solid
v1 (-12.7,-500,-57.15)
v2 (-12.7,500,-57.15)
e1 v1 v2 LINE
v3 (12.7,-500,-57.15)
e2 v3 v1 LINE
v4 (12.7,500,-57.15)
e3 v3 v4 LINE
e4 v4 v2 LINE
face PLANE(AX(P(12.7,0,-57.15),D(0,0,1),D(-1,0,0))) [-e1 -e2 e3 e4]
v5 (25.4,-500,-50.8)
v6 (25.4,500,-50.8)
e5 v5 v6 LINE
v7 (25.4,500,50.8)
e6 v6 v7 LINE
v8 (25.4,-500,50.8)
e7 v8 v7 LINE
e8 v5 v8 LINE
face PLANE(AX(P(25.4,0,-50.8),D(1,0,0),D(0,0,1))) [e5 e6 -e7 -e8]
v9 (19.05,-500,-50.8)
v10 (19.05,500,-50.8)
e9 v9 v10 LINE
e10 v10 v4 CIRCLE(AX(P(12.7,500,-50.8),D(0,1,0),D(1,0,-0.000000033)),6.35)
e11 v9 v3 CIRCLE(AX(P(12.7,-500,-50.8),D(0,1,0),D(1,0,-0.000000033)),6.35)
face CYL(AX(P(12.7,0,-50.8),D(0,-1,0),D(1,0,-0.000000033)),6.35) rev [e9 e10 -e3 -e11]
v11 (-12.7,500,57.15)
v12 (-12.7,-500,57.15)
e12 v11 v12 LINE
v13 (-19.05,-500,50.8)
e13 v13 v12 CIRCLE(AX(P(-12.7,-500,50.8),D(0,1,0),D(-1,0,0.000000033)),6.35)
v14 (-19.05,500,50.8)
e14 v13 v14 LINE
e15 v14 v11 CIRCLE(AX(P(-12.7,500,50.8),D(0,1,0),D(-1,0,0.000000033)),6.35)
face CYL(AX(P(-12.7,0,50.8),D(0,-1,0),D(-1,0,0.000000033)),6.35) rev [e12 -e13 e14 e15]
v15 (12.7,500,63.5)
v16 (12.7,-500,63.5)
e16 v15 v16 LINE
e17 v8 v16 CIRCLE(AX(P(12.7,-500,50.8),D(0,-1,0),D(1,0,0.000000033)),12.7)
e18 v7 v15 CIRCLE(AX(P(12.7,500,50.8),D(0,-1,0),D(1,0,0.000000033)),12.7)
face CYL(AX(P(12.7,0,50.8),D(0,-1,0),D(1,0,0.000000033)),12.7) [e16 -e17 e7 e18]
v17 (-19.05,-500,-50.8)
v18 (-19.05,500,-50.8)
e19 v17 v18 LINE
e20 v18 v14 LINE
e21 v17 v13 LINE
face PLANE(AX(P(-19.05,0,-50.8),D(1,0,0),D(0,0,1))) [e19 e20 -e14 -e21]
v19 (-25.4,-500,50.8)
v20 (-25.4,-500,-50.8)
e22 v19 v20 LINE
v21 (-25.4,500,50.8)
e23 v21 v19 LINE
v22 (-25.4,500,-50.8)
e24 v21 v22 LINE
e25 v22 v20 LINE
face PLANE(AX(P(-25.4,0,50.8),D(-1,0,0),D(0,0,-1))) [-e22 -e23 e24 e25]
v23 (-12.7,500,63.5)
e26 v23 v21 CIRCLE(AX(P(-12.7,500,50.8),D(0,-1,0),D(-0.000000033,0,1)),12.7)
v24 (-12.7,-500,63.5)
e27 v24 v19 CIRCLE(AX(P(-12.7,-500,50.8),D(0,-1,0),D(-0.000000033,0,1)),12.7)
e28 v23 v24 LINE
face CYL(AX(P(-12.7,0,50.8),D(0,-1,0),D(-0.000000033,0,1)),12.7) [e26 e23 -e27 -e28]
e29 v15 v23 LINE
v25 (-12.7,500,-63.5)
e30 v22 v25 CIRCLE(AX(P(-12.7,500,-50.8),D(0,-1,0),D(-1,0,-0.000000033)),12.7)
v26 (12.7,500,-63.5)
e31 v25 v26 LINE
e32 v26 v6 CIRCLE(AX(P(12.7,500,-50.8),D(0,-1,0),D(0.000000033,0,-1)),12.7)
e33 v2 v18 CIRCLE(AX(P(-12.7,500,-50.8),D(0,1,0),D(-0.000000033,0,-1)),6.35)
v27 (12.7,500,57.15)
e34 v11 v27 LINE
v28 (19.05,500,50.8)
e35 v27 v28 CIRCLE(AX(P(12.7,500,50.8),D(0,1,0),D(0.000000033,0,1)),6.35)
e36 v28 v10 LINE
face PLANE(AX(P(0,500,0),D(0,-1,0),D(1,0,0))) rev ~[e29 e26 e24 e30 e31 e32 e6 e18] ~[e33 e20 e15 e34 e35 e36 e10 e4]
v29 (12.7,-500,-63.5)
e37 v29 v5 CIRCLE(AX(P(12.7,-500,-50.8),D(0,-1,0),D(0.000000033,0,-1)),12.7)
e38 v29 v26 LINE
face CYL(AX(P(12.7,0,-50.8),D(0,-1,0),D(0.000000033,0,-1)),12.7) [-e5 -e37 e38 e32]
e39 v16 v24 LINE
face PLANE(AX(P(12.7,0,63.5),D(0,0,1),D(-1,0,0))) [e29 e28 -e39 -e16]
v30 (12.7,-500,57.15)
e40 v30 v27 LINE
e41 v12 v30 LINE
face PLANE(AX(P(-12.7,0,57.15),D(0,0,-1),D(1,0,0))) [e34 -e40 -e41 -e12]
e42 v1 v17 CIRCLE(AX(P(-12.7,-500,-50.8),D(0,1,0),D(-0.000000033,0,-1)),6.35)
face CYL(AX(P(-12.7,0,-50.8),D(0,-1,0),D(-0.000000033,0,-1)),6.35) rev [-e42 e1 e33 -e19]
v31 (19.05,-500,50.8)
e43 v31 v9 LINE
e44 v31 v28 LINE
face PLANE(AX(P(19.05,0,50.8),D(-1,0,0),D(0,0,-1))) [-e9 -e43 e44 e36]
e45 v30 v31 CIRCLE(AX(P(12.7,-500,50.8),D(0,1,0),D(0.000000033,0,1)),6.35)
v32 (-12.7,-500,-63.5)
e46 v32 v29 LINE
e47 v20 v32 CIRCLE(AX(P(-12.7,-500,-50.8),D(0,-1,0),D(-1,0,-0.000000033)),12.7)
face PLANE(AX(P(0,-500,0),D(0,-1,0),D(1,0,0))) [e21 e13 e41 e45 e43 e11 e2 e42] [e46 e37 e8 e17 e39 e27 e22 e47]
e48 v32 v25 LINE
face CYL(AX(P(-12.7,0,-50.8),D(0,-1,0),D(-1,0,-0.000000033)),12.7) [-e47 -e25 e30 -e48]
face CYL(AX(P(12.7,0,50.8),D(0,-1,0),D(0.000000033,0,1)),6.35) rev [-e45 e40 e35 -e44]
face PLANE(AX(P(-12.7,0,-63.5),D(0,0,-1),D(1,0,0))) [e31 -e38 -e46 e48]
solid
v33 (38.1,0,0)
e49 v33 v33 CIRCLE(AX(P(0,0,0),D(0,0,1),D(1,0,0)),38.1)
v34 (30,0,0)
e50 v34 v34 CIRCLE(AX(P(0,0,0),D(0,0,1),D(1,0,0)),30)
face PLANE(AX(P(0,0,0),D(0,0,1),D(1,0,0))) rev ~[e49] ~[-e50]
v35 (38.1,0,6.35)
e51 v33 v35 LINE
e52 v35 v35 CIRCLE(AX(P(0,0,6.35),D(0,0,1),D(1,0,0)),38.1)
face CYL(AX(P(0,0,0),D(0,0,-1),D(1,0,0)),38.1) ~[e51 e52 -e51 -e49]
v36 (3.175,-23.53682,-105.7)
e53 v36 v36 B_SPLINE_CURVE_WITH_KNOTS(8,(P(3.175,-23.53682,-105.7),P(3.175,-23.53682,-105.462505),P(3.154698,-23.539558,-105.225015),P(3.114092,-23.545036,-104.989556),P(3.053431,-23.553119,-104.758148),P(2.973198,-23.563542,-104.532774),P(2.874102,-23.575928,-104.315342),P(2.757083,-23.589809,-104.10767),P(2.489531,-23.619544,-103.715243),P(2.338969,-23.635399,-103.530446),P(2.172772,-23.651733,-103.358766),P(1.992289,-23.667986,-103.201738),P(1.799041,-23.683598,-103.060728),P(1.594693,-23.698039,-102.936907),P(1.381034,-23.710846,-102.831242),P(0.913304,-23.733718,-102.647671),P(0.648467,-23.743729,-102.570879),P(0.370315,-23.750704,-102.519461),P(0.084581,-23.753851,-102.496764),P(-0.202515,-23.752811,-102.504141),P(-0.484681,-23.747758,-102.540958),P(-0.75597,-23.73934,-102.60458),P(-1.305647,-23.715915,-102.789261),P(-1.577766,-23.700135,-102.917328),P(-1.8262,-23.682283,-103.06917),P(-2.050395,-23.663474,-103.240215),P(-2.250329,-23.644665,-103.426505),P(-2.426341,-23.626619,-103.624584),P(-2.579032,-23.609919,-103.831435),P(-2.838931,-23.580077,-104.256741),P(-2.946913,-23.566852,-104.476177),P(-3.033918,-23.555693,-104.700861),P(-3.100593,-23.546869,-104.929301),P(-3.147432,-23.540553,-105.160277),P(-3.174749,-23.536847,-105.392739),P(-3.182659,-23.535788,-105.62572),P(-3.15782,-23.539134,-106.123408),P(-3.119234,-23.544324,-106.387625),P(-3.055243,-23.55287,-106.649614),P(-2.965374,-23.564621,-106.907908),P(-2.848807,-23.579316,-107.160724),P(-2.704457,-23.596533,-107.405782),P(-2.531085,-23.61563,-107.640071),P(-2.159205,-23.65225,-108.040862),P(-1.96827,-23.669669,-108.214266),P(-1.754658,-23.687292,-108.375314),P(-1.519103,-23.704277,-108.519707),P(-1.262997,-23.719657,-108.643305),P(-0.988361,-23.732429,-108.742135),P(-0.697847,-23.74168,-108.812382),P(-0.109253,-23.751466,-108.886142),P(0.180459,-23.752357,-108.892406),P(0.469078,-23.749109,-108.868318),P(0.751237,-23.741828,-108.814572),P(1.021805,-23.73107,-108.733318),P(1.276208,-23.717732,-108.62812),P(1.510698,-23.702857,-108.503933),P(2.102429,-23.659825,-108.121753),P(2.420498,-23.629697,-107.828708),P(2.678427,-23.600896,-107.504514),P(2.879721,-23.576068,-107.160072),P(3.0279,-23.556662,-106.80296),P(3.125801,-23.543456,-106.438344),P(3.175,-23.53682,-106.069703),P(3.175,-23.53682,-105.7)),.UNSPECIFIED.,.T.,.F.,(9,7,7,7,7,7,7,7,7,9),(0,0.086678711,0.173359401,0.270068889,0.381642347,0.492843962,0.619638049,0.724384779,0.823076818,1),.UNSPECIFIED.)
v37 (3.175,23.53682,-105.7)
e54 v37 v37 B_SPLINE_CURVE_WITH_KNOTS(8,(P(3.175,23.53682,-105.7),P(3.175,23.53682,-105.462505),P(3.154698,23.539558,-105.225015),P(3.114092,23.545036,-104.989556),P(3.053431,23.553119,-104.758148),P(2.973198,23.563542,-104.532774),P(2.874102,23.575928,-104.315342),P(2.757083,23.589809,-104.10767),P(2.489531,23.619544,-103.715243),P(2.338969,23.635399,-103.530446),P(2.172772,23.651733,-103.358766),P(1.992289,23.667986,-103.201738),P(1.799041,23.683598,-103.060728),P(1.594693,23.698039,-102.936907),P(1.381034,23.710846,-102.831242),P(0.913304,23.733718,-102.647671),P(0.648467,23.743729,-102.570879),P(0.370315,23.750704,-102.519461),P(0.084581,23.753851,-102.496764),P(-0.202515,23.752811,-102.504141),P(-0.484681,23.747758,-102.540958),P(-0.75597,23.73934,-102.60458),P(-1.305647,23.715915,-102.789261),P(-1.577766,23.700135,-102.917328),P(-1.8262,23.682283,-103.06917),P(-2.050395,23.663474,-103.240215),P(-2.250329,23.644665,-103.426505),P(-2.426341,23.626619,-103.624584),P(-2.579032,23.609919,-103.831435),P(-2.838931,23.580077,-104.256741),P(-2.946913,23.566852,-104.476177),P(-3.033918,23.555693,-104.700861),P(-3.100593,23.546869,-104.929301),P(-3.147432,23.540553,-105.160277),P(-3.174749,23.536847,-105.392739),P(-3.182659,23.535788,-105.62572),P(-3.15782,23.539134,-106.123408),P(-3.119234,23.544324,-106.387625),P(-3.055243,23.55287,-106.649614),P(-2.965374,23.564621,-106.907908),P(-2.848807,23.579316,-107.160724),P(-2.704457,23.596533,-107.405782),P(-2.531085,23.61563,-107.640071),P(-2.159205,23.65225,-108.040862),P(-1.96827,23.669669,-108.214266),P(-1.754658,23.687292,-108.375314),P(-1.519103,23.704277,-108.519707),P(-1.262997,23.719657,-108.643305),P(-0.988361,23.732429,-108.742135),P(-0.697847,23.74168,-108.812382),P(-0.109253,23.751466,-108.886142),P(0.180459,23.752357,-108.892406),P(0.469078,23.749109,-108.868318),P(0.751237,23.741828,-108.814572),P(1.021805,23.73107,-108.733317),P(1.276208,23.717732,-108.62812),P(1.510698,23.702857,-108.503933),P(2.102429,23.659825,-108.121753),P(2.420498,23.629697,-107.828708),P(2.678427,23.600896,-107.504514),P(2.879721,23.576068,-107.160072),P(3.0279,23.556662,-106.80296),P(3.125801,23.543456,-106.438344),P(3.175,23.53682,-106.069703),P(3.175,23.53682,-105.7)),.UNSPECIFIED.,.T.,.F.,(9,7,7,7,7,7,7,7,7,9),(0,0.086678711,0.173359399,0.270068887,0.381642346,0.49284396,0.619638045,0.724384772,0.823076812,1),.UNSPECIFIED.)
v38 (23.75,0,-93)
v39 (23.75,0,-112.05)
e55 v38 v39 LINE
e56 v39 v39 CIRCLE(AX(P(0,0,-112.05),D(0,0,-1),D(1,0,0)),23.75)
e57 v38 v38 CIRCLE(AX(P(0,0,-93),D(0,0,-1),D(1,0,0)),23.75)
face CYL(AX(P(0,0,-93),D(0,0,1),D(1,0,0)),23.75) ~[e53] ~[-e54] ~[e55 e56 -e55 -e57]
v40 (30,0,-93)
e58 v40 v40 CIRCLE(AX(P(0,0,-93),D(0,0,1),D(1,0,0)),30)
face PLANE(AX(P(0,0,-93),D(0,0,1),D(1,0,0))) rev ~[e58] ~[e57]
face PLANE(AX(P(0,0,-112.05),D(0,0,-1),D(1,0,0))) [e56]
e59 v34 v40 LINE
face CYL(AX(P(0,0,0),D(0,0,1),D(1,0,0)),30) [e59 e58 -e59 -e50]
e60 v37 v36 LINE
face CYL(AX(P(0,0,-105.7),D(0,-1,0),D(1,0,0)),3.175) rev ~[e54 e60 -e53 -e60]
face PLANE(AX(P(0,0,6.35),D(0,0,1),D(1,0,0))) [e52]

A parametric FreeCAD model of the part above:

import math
import FreeCAD as App
import Part
import Sketcher
Q = App.Units.Quantity

doc = App.newDocument("Part")
params = doc.addObject("Spreadsheet::Sheet", "Params")
for row, (alias, value) in enumerate([
    ("pad1_length", "93 mm"),
    ("sketch2_diameter", "3 in"),
    ("pad2_length", "0.25 in"),
    ("pad3_length", "0.75 in"),
    ("sketch4_diameter", "0.25 in"),
    ("pocket1_length", "60 mm"),
    ("pad4_length", "0.75 in"),
    ("sketch6_diameter", "0.25 in"),
    ("pocket2_length", "60 mm"),
    ("sketch7_radius", "0.5 in"),
    ("sketch7_width", "1 in"),
    ("sketch7_height", "4 in"),
    ("sketch7_radius2", "0.25 in"),
    ("pad5_length", "1000 mm"),
], start=1):
    params.set(f"A{row}", alias)
    params.set(f"B{row}", "=" + value)
    params.setAlias(f"B{row}", alias)

body = doc.addObject("PartDesign::Body", "Body")

# Sketch on XY plane
sketch1 = doc.addObject("Sketcher::SketchObject", "Sketch")
body.addObject(sketch1)
sketch1.AttachmentSupport = (doc.XY_Plane, [""])
sketch1.MapMode = "FlatFace"
sketch1.addGeometry(Part.Circle(App.Vector(0, 0, 0), App.Vector(0, 0, 1), 30), False)
sketch1.addConstraint([
    Sketcher.Constraint("Coincident", 0, 3, -1, 1),
    Sketcher.Constraint("Diameter", 0, 60.0),
])
pad1 = doc.addObject("PartDesign::Pad", "Pad")
body.addObject(pad1)
pad1.Profile = sketch1
pad1.setExpression("Length", "Params.pad1_length")
pad1.Reversed = True

# Sketch on XY plane
sketch2 = doc.addObject("Sketcher::SketchObject", "Sketch001")
body.addObject(sketch2)
sketch2.AttachmentSupport = (doc.XY_Plane, [""])
sketch2.MapMode = "FlatFace"
sketch2.addGeometry(Part.Circle(App.Vector(0, 0, 0), App.Vector(0, 0, 1), 38.1), False)
sketch2.addConstraint([
    Sketcher.Constraint("Coincident", 0, 3, -1, 1),
    Sketcher.Constraint("Diameter", 0, Q("3 in")),
])
sketch2.setExpression("Constraints[1]", "Params.sketch2_diameter")
pad2 = doc.addObject("PartDesign::Pad", "Pad001")
body.addObject(pad2)
pad2.Profile = sketch2
pad2.setExpression("Length", "Params.pad2_length")

# Sketch on XY plane
sketch3 = doc.addObject("Sketcher::SketchObject", "Sketch002")
body.addObject(sketch3)
sketch3.AttachmentSupport = (doc.XY_Plane, [""])
sketch3.MapMode = "FlatFace"
sketch3.AttachmentOffset = App.Placement(App.Vector(0, 0, -93), App.Rotation())
sketch3.addGeometry(Part.Circle(App.Vector(0, 0, 0), App.Vector(0, 0, 1), 23.75), False)
sketch3.addConstraint([
    Sketcher.Constraint("Coincident", 0, 3, -1, 1),
    Sketcher.Constraint("Diameter", 0, 47.5),
])
pad3 = doc.addObject("PartDesign::Pad", "Pad002")
body.addObject(pad3)
pad3.Profile = sketch3
pad3.setExpression("Length", "Params.pad3_length")
pad3.Reversed = True

# Sketch on XZ plane
sketch4 = doc.addObject("Sketcher::SketchObject", "Sketch003")
body.addObject(sketch4)
sketch4.AttachmentSupport = (doc.XZ_Plane, [""])
sketch4.MapMode = "FlatFace"
sketch4.addGeometry(Part.Circle(App.Vector(0, -105.7, 0), App.Vector(0, 0, 1), 3.175), False)
sketch4.addConstraint([
    Sketcher.Constraint("PointOnObject", 0, 3, -2),
    Sketcher.Constraint("Diameter", 0, Q("0.25 in")),
    Sketcher.Constraint("DistanceY", 0, 3, -1, 1, 105.7),
])
sketch4.setExpression("Constraints[1]", "Params.sketch4_diameter")
pocket1 = doc.addObject("PartDesign::Pocket", "Pocket")
body.addObject(pocket1)
pocket1.Profile = sketch4
pocket1.setExpression("Length", "Params.pocket1_length")
pocket1.Midplane = True
body2 = doc.addObject("PartDesign::Body", "Body001")

# Sketch on XY plane
sketch5 = doc.addObject("Sketcher::SketchObject", "Sketch004")
body2.addObject(sketch5)
sketch5.AttachmentSupport = (doc.getObject("XY_Plane001"), [""])
sketch5.MapMode = "FlatFace"
sketch5.AttachmentOffset = App.Placement(App.Vector(0, 0, -93), App.Rotation())
sketch5.addGeometry(Part.Circle(App.Vector(0, 0, 0), App.Vector(0, 0, 1), 23.75), False)
sketch5.addConstraint([
    Sketcher.Constraint("Coincident", 0, 3, -1, 1),
    Sketcher.Constraint("Diameter", 0, 47.5),
])
pad4 = doc.addObject("PartDesign::Pad", "Pad003")
body2.addObject(pad4)
pad4.Profile = sketch5
pad4.setExpression("Length", "Params.pad4_length")
pad4.Reversed = True

# Sketch on XZ plane
sketch6 = doc.addObject("Sketcher::SketchObject", "Sketch005")
body2.addObject(sketch6)
sketch6.AttachmentSupport = (doc.getObject("XZ_Plane001"), [""])
sketch6.MapMode = "FlatFace"
sketch6.addGeometry(Part.Circle(App.Vector(0, -105.7, 0), App.Vector(0, 0, 1), 3.175), False)
sketch6.addConstraint([
    Sketcher.Constraint("PointOnObject", 0, 3, -2),
    Sketcher.Constraint("Diameter", 0, Q("0.25 in")),
    Sketcher.Constraint("DistanceY", 0, 3, -1, 1, 105.7),
])
sketch6.setExpression("Constraints[1]", "Params.sketch6_diameter")
pocket2 = doc.addObject("PartDesign::Pocket", "Pocket001")
body2.addObject(pocket2)
pocket2.Profile = sketch6
pocket2.setExpression("Length", "Params.pocket2_length")
pocket2.Midplane = True
body3 = doc.addObject("PartDesign::Body", "Body002")

# Sketch on XZ plane
sketch7 = doc.addObject("Sketcher::SketchObject", "Sketch006")
body3.addObject(sketch7)
sketch7.AttachmentSupport = (doc.getObject("XZ_Plane002"), [""])
sketch7.MapMode = "FlatFace"
sketch7.addGeometry([
    Part.ArcOfCircle(Part.Circle(App.Vector(12.7, 50.8, 0), App.Vector(0, 0, 1), 12.7), math.radians(0.000002), math.radians(89.999998)),  # 0
    Part.LineSegment(App.Vector(12.7, 63.5, 0), App.Vector(-12.7, 63.5, 0)),  # 1
    Part.ArcOfCircle(Part.Circle(App.Vector(-12.7, 50.8, 0), App.Vector(0, 0, 1), 12.7), math.radians(90.000002), math.radians(179.999998)),  # 2
    Part.LineSegment(App.Vector(-25.4, 50.8, 0), App.Vector(-25.4, -50.8, 0)),  # 3
    Part.ArcOfCircle(Part.Circle(App.Vector(-12.7, -50.8, 0), App.Vector(0, 0, 1), 12.7), math.radians(-179.999998), math.radians(-90.000002)),  # 4
    Part.LineSegment(App.Vector(-12.7, -63.5, 0), App.Vector(12.7, -63.5, 0)),  # 5
    Part.ArcOfCircle(Part.Circle(App.Vector(12.7, -50.8, 0), App.Vector(0, 0, 1), 12.7), math.radians(-89.999998), math.radians(-0.000002)),  # 6
    Part.LineSegment(App.Vector(25.4, -50.8, 0), App.Vector(25.4, 50.8, 0)),  # 7
    Part.ArcOfCircle(Part.Circle(App.Vector(-12.7, 50.8, 0), App.Vector(0, 0, 1), 6.35), math.radians(90.000002), math.radians(179.999998)),  # 8
    Part.LineSegment(App.Vector(-12.7, 57.15, 0), App.Vector(12.7, 57.15, 0)),  # 9
    Part.ArcOfCircle(Part.Circle(App.Vector(12.7, 50.8, 0), App.Vector(0, 0, 1), 6.35), math.radians(0.000002), math.radians(89.999998)),  # 10
    Part.LineSegment(App.Vector(19.05, 50.8, 0), App.Vector(19.05, -50.8, 0)),  # 11
    Part.ArcOfCircle(Part.Circle(App.Vector(12.7, -50.8, 0), App.Vector(0, 0, 1), 6.35), math.radians(-89.999998), math.radians(-0.000002)),  # 12
    Part.LineSegment(App.Vector(12.7, -57.15, 0), App.Vector(-12.7, -57.15, 0)),  # 13
    Part.ArcOfCircle(Part.Circle(App.Vector(-12.7, -50.8, 0), App.Vector(0, 0, 1), 6.35), math.radians(-179.999998), math.radians(-90.000002)),  # 14
    Part.LineSegment(App.Vector(-19.05, -50.8, 0), App.Vector(-19.05, 50.8, 0)),  # 15
], False)
sketch7.addConstraint([
    Sketcher.Constraint("Tangent", 0, 2, 1, 1),
    Sketcher.Constraint("Tangent", 1, 2, 2, 1),
    Sketcher.Constraint("Tangent", 2, 2, 3, 1),
    Sketcher.Constraint("Tangent", 3, 2, 4, 1),
    Sketcher.Constraint("Tangent", 4, 2, 5, 1),
    Sketcher.Constraint("Tangent", 5, 2, 6, 1),
    Sketcher.Constraint("Tangent", 6, 2, 7, 1),
    Sketcher.Constraint("Tangent", 7, 2, 0, 1),
    Sketcher.Constraint("Tangent", 8, 1, 9, 1),
    Sketcher.Constraint("Tangent", 9, 2, 10, 2),
    Sketcher.Constraint("Tangent", 10, 1, 11, 1),
    Sketcher.Constraint("Tangent", 11, 2, 12, 2),
    Sketcher.Constraint("Tangent", 12, 1, 13, 1),
    Sketcher.Constraint("Tangent", 13, 2, 14, 2),
    Sketcher.Constraint("Tangent", 14, 1, 15, 1),
    Sketcher.Constraint("Tangent", 15, 2, 8, 2),
    Sketcher.Constraint("Horizontal", 1),
    Sketcher.Constraint("Vertical", 3),
    Sketcher.Constraint("Horizontal", 5),
    Sketcher.Constraint("Vertical", 7),
    Sketcher.Constraint("Horizontal", 9),
    Sketcher.Constraint("Vertical", 11),
    Sketcher.Constraint("Horizontal", 13),
    Sketcher.Constraint("Vertical", 15),
    Sketcher.Constraint("Coincident", 8, 3, 2, 3),
    Sketcher.Constraint("Coincident", 10, 3, 0, 3),
    Sketcher.Constraint("Coincident", 12, 3, 6, 3),
    Sketcher.Constraint("Equal", 0, 2),
    Sketcher.Constraint("Equal", 2, 4),
    Sketcher.Constraint("Equal", 4, 6),
    Sketcher.Constraint("Equal", 12, 14),
    Sketcher.Constraint("Symmetric", 0, 3, 4, 3, -1, 1),
    Sketcher.Constraint("Radius", 0, Q("0.5 in")),
    Sketcher.Constraint("DistanceX", 1, 2, 1, 1, Q("1 in")),
    Sketcher.Constraint("DistanceY", 3, 2, 3, 1, Q("4 in")),
    Sketcher.Constraint("Radius", 8, Q("0.25 in")),
])
sketch7.setExpression("Constraints[32]", "Params.sketch7_radius")
sketch7.setExpression("Constraints[33]", "Params.sketch7_width")
sketch7.setExpression("Constraints[34]", "Params.sketch7_height")
sketch7.setExpression("Constraints[35]", "Params.sketch7_radius2")
pad5 = doc.addObject("PartDesign::Pad", "Pad004")
body3.addObject(pad5)
pad5.Profile = sketch7
pad5.setExpression("Length", "Params.pad5_length")
pad5.Midplane = True
body2.Visibility = False

doc.recompute()
